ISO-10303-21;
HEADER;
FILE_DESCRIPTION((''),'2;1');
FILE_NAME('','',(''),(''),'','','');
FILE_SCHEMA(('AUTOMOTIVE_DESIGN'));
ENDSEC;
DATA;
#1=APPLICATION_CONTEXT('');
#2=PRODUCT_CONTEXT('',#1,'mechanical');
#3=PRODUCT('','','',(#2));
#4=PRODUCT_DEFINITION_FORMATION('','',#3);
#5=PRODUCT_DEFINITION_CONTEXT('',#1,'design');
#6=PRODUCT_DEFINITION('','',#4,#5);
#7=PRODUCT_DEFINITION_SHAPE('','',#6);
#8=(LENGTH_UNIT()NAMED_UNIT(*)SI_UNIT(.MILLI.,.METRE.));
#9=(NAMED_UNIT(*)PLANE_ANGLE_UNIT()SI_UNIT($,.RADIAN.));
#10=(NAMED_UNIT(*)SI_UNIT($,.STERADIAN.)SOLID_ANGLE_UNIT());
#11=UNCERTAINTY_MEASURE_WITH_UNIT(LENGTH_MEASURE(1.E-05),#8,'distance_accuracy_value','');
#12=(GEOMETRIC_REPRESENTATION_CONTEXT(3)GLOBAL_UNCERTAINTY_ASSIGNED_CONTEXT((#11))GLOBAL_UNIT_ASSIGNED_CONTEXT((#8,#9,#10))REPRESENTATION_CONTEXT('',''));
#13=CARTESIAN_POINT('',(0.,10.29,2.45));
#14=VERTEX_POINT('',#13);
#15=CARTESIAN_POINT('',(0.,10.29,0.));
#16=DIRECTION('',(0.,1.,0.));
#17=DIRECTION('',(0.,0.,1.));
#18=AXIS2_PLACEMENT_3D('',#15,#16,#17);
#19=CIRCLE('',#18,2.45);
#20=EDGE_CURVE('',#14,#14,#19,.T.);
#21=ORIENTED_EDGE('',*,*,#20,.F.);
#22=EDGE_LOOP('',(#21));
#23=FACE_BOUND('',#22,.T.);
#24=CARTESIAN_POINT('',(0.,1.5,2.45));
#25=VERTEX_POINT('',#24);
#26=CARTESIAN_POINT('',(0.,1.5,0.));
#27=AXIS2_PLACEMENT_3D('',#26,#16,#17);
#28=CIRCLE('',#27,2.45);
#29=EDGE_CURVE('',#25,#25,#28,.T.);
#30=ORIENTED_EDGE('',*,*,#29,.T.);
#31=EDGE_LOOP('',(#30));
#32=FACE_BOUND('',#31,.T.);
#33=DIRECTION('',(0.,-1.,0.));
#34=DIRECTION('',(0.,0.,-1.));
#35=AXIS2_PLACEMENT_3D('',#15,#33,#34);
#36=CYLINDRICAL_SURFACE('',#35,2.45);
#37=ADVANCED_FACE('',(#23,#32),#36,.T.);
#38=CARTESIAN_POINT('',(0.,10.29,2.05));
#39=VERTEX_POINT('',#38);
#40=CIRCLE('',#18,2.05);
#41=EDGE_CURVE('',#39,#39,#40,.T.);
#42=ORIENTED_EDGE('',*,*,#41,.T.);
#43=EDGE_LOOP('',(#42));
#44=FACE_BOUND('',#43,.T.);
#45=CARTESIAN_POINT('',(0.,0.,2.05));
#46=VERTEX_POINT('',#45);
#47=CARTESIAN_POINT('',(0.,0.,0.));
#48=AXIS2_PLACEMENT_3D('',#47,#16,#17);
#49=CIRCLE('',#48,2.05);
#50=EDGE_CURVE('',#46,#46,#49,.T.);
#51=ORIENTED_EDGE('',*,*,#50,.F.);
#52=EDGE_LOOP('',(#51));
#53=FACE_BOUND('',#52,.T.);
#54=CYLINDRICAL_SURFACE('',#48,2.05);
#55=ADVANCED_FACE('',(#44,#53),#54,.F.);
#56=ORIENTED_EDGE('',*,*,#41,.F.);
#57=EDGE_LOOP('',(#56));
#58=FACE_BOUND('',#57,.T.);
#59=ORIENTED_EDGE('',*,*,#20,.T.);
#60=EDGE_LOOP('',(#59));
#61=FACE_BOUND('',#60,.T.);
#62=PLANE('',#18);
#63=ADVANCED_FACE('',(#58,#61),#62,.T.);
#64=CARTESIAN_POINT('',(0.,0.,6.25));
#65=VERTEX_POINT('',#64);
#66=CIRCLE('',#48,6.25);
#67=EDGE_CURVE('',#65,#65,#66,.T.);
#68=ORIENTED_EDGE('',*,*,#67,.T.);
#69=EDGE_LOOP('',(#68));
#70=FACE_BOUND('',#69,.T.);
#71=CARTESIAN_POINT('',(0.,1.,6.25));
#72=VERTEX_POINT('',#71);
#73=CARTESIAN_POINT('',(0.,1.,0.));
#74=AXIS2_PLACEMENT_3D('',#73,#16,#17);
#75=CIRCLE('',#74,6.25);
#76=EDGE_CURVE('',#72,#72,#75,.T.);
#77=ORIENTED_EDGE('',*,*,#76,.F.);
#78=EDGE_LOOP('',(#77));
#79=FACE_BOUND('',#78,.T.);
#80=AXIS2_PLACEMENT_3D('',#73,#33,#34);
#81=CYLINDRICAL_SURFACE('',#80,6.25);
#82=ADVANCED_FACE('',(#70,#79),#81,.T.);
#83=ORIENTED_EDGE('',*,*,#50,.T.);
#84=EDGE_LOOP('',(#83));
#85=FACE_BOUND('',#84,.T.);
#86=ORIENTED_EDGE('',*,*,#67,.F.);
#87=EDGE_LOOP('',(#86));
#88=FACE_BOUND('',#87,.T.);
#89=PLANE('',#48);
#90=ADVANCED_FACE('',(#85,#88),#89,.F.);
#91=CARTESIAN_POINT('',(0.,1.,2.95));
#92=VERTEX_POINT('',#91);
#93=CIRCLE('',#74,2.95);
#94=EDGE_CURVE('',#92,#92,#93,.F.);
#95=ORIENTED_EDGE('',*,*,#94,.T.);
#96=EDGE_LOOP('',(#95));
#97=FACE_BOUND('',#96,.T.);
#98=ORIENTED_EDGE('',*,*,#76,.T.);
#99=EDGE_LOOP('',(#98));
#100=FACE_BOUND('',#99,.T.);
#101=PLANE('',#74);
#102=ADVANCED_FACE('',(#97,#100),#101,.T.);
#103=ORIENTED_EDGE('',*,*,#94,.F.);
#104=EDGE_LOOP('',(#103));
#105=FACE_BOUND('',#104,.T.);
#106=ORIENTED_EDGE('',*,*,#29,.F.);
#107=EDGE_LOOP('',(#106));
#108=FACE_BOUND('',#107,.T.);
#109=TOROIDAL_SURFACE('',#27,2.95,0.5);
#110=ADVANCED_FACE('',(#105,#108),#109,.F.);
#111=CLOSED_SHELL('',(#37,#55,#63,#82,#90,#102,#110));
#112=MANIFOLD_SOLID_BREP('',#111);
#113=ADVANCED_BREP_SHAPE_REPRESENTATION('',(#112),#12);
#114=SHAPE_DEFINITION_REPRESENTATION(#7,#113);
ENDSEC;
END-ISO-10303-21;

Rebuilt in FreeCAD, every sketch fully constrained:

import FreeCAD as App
import Part
import Sketcher
Q = App.Units.Quantity


def edges_at(feature, points):
    """Names of the edges that pass closest to the given points."""
    edges = feature.Shape.Edges
    near = lambda p: min(range(len(edges)), key=lambda i: edges[i].distToShape(Part.Vertex(*p))[0])
    return sorted({f"Edge{near(p) + 1}" for p in points})

doc = App.newDocument("Part")
body = doc.addObject("PartDesign::Body", "Body")

# Sketch on XZ plane
sketch1 = doc.addObject("Sketcher::SketchObject", "Sketch")
body.addObject(sketch1)
sketch1.AttachmentSupport = (doc.XZ_Plane, [""])
sketch1.MapMode = "FlatFace"
sketch1.addGeometry(Part.Circle(App.Vector(0, 0, 0), App.Vector(0, 0, 1), 6), False)
sketch1.addConstraint([
    Sketcher.Constraint("Coincident", 0, 3, -1, 1),
    Sketcher.Constraint("Diameter", 0, Q("12.5 mm")),
])
pad1 = doc.addObject("PartDesign::Pad", "Pad")
body.addObject(pad1)
pad1.Profile = sketch1
pad1.Length = 1
pad1.Reversed = True

# Sketch on XZ plane
sketch2 = doc.addObject("Sketcher::SketchObject", "Sketch001")
body.addObject(sketch2)
sketch2.AttachmentSupport = (doc.XZ_Plane, [""])
sketch2.MapMode = "FlatFace"
sketch2.AttachmentOffset = App.Placement(App.Vector(0, 0, -1), App.Rotation())
sketch2.addGeometry(Part.Circle(App.Vector(0, 0, 0), App.Vector(0, 0, 1), 2.5), False)
sketch2.addConstraint([
    Sketcher.Constraint("Coincident", 0, 3, -1, 1),
    Sketcher.Constraint("Diameter", 0, Q("4.9 mm")),
])
pad2 = doc.addObject("PartDesign::Pad", "Pad001")
body.addObject(pad2)
pad2.Profile = sketch2
pad2.Length = 9.29
pad2.Reversed = True

# Sketch on XZ plane
sketch3 = doc.addObject("Sketcher::SketchObject", "Sketch002")
body.addObject(sketch3)
sketch3.AttachmentSupport = (doc.XZ_Plane, [""])
sketch3.MapMode = "FlatFace"
sketch3.AttachmentOffset = App.Placement(App.Vector(0, 0, -10.29), App.Rotation())
sketch3.addGeometry(Part.Circle(App.Vector(0, 0, 0), App.Vector(0, 0, 1), 2), False)
sketch3.addConstraint([
    Sketcher.Constraint("Coincident", 0, 3, -1, 1),
    Sketcher.Constraint("Diameter", 0, Q("4.1 mm")),
])
pocket1 = doc.addObject("PartDesign::Pocket", "Pocket")
body.addObject(pocket1)
pocket1.Profile = sketch3
pocket1.Type = "ThroughAll"
pocket1.Reversed = True
doc.recompute()

fillet = doc.addObject("PartDesign::Fillet", "Fillet")
body.addObject(fillet)
fillet.Base = (pocket1, edges_at(pocket1, [(0, 1, -2.45)]))
fillet.Radius = 0.5

doc.recompute()
